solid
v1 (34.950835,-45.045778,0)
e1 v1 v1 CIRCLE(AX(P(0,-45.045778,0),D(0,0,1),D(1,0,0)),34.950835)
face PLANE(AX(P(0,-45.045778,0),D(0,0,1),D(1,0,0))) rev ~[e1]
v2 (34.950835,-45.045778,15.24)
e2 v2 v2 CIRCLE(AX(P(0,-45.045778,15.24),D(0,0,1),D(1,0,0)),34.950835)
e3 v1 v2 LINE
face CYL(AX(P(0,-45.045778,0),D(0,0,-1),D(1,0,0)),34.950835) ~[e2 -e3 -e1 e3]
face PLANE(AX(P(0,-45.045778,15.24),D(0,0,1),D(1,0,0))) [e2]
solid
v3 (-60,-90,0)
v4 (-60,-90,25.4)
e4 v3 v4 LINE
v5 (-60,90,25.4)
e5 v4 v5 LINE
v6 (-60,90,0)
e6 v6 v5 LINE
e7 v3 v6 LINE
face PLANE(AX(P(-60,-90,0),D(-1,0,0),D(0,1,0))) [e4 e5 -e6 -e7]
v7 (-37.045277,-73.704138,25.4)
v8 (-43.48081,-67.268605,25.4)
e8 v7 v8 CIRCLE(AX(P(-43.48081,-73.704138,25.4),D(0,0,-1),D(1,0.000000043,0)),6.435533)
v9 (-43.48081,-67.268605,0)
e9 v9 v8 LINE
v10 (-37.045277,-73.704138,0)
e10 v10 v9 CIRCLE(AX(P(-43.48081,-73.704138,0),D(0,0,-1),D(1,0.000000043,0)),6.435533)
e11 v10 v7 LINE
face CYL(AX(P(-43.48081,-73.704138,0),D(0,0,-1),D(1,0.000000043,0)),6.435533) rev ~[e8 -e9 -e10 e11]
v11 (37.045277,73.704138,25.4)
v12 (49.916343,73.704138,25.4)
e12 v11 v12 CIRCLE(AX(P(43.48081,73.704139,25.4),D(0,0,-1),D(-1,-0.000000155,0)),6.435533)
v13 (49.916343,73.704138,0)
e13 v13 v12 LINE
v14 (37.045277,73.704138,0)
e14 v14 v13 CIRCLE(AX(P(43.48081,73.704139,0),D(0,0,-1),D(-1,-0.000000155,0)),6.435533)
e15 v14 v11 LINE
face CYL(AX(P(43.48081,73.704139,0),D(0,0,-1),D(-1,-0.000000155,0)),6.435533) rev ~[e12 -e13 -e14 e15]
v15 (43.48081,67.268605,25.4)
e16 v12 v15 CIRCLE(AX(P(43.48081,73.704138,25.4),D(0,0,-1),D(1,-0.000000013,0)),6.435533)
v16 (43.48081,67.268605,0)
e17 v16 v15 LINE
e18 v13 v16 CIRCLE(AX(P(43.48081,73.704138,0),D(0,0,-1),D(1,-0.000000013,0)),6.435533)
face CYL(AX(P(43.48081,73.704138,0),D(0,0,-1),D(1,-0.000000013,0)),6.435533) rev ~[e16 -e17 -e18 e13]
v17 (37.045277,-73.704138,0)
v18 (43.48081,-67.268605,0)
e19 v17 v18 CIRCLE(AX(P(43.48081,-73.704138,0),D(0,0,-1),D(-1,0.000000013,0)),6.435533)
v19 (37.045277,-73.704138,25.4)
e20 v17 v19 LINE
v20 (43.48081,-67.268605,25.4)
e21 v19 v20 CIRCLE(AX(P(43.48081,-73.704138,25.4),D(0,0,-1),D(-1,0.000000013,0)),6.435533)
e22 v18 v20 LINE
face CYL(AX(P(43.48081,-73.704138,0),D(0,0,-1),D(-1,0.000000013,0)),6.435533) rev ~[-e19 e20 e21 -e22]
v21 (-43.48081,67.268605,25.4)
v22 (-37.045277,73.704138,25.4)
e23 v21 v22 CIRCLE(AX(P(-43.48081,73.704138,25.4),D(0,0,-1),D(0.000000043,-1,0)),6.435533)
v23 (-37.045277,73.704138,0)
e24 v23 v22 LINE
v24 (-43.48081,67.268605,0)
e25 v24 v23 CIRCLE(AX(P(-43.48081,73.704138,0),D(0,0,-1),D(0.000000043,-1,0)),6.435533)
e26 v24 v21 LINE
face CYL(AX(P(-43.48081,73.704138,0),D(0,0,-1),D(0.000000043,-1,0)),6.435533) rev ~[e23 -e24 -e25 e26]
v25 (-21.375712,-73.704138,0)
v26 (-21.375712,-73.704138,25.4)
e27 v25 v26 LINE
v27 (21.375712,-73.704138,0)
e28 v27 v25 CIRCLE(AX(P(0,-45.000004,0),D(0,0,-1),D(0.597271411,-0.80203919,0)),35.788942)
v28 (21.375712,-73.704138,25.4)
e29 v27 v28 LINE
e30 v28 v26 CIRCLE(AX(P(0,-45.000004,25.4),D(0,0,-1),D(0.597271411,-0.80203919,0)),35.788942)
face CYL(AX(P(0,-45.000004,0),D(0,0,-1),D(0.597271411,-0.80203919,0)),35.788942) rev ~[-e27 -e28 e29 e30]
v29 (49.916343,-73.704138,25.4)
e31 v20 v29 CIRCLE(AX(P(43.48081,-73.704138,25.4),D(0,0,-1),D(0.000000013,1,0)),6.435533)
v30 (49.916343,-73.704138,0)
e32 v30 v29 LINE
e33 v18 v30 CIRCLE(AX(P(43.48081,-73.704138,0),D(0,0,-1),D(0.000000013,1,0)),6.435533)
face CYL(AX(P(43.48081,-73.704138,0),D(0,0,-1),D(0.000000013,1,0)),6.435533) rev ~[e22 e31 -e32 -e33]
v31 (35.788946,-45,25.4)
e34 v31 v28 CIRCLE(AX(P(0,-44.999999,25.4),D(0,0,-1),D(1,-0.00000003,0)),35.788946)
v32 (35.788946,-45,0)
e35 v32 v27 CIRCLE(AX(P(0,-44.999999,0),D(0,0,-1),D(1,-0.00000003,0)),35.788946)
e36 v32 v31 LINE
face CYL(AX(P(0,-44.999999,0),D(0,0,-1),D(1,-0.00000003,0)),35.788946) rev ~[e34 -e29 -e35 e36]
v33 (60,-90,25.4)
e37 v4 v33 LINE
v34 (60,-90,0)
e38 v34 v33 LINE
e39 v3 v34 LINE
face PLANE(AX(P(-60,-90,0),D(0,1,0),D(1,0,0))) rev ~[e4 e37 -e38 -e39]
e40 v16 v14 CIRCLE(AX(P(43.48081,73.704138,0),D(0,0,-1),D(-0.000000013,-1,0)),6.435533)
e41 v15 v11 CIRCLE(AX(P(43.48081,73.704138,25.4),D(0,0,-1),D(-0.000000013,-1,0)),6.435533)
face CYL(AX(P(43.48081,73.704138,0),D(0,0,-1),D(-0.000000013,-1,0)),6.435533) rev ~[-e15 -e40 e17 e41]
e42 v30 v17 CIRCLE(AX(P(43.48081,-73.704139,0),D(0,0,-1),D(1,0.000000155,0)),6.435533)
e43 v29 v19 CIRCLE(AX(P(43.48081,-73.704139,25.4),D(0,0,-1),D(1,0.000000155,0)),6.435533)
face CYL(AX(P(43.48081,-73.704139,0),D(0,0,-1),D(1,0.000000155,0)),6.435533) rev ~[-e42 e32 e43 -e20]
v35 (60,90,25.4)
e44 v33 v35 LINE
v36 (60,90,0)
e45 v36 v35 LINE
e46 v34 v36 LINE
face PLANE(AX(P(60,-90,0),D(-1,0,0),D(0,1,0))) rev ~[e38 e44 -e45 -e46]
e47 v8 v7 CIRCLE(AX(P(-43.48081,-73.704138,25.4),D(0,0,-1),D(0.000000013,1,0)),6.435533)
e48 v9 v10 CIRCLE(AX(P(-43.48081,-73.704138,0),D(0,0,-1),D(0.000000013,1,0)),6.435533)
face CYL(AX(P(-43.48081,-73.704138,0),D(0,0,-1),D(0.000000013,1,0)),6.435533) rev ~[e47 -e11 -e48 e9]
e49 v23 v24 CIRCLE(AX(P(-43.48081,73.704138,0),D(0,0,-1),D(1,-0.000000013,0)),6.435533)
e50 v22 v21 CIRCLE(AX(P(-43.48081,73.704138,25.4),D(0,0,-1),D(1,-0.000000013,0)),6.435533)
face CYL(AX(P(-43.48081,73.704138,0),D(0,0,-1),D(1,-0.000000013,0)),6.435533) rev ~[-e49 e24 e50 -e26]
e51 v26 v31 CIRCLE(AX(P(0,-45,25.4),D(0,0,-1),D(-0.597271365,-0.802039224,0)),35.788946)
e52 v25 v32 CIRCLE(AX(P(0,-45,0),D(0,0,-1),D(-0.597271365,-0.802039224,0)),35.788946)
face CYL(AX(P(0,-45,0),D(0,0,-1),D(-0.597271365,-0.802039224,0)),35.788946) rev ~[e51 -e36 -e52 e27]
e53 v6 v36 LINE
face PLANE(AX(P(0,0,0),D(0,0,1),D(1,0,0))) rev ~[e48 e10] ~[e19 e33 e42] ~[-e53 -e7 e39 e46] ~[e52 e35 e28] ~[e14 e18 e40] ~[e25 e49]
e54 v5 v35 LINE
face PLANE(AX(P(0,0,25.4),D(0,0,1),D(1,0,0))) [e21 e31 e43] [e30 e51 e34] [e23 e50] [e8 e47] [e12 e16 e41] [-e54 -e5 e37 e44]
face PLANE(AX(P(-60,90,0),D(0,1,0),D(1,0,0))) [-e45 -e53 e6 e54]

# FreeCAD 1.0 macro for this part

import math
import FreeCAD as App
import Part
import Sketcher

doc = App.newDocument("Part")
params = doc.addObject("Spreadsheet::Sheet", "Params")
for row, (alias, value) in enumerate([
    ("sketch1_width", "120 mm"),
    ("sketch1_height", "180 mm"),
    ("pad1_length", "25.4 mm"),
    ("pad2_length", "15.24 mm"),
], start=1):
    params.set(f"A{row}", alias)
    params.set(f"B{row}", "=" + value)
    params.setAlias(f"B{row}", alias)

body = doc.addObject("PartDesign::Body", "Body")

# Sketch on XY plane
sketch1 = body.newObject("Sketcher::SketchObject", "Sketch")
sketch1.AttachmentSupport = (doc.getObject("XY_Plane"), [""])
sketch1.MapMode = "FlatFace"
sketch1.addGeometry([
    Part.LineSegment(App.Vector(-60, 90, 0), App.Vector(-60, -90, 0)),  # 0
    Part.LineSegment(App.Vector(-60, -90, 0), App.Vector(60, -90, 0)),  # 1
    Part.LineSegment(App.Vector(60, -90, 0), App.Vector(60, 90, 0)),  # 2
    Part.LineSegment(App.Vector(60, 90, 0), App.Vector(-60, 90, 0)),  # 3
    Part.ArcOfCircle(Part.Circle(App.Vector(0, -45.000004, 0), App.Vector(0, 0, 1), 35.788942), math.radians(-126.674726), math.radians(-53.325274)),  # 4
    Part.ArcOfCircle(Part.Circle(App.Vector(0, -45, 0), App.Vector(0, 0, 1), 35.788946), math.radians(0), math.radians(233.325277)),  # 5
    Part.ArcOfCircle(Part.Circle(App.Vector(0, -44.999999, 0), App.Vector(0, 0, 1), 35.788946), math.radians(-53.325279), math.radians(-0.000002)),  # 6
    Part.ArcOfCircle(Part.Circle(App.Vector(-43.48081, -73.704138, 0), App.Vector(0, 0, 1), 6.435533), math.radians(89.999998), math.radians(360.000002)),  # 7
    Part.ArcOfCircle(Part.Circle(App.Vector(-43.48081, -73.704138, 0), App.Vector(0, 0, 1), 6.435533), math.radians(0.000001), math.radians(89.999999)),  # 8
    Part.ArcOfCircle(Part.Circle(App.Vector(43.48081, -73.704138, 0), App.Vector(0, 0, 1), 6.435533), math.radians(0.000001), math.radians(89.999999)),  # 9
    Part.ArcOfCircle(Part.Circle(App.Vector(43.48081, -73.704139, 0), App.Vector(0, 0, 1), 6.435533), math.radians(179.999991), math.radians(360.000009)),  # 10
    Part.ArcOfCircle(Part.Circle(App.Vector(43.48081, -73.704138, 0), App.Vector(0, 0, 1), 6.435533), math.radians(90.000001), math.radians(179.999999)),  # 11
    Part.ArcOfCircle(Part.Circle(App.Vector(43.48081, 73.704138, 0), App.Vector(0, 0, 1), 6.435533), math.radians(-89.999999), math.radians(-0.000001)),  # 12
    Part.ArcOfCircle(Part.Circle(App.Vector(43.48081, 73.704138, 0), App.Vector(0, 0, 1), 6.435533), math.radians(-179.999999), math.radians(-90.000001)),  # 13
    Part.ArcOfCircle(Part.Circle(App.Vector(43.48081, 73.704139, 0), App.Vector(0, 0, 1), 6.435533), math.radians(-0.000009), math.radians(180.000009)),  # 14
    Part.ArcOfCircle(Part.Circle(App.Vector(-43.48081, 73.704138, 0), App.Vector(0, 0, 1), 6.435533), math.radians(-0.000002), math.radians(270.000002)),  # 15
    Part.ArcOfCircle(Part.Circle(App.Vector(-43.48081, 73.704138, 0), App.Vector(0, 0, 1), 6.435533), math.radians(-89.999999), math.radians(-0.000001)),  # 16
], False)
sketch1.addConstraint([
    Sketcher.Constraint("Coincident", 0, 2, 1, 1),
    Sketcher.Constraint("Coincident", 1, 2, 2, 1),
    Sketcher.Constraint("Coincident", 2, 2, 3, 1),
    Sketcher.Constraint("Coincident", 3, 2, 0, 1),
    Sketcher.Constraint("Tangent", 4, 1, 5, 2),
    Sketcher.Constraint("Tangent", 5, 1, 6, 2),
    Sketcher.Constraint("Tangent", 6, 1, 4, 2),
    Sketcher.Constraint("Tangent", 7, 1, 8, 2),
    Sketcher.Constraint("Coincident", 8, 1, 7, 2),
    Sketcher.Constraint("Tangent", 9, 1, 10, 2),
    Sketcher.Constraint("Tangent", 10, 1, 11, 2),
    Sketcher.Constraint("Tangent", 11, 1, 9, 2),
    Sketcher.Constraint("Tangent", 12, 1, 13, 2),
    Sketcher.Constraint("Tangent", 13, 1, 14, 2),
    Sketcher.Constraint("Tangent", 14, 1, 12, 2),
    Sketcher.Constraint("Tangent", 15, 1, 16, 2),
    Sketcher.Constraint("Coincident", 16, 1, 15, 2),
    Sketcher.Constraint("Vertical", 0),
    Sketcher.Constraint("Horizontal", 1),
    Sketcher.Constraint("Vertical", 2),
    Sketcher.Constraint("Horizontal", 3),
    Sketcher.Constraint("Equal", 8, 9),
    Sketcher.Constraint("Equal", 11, 12),
    Sketcher.Constraint("Equal", 14, 15),
    Sketcher.Constraint("Symmetric", 7, 3, 12, 3, -1, 1),
    Sketcher.Constraint("Symmetric", 9, 3, 15, 3, -1, 1),
    Sketcher.Constraint("Symmetric", 0, 2, 2, 2, -1, 1),
    Sketcher.Constraint("Symmetric", 7, 3, 9, 3, -2),
    Sketcher.Constraint("Symmetric", 4, 1, 6, 1, -2),
    Sketcher.Constraint("Horizontal", 11, 3, 4, 1),
    Sketcher.Constraint("Horizontal", 6, 3, 5, 1),
    Sketcher.Constraint("Horizontal", 6, 1, 8, 1),
    Sketcher.Constraint("Horizontal", 8, 1, 9, 1),
    Sketcher.Constraint("Horizontal", 9, 1, 10, 1),
    Sketcher.Constraint("Horizontal", 16, 3, 13, 1),
    Sketcher.Constraint("Horizontal", 13, 1, 14, 1),
    Sketcher.Constraint("Horizontal", 14, 1, 15, 1),
    Sketcher.Constraint("Vertical", 16, 3, 7, 1),
    Sketcher.Constraint("Vertical", 14, 3, 11, 1),
    Sketcher.Constraint("Vertical", 11, 1, 12, 1),
    Sketcher.Constraint("Vertical", 7, 1, 16, 1),
    Sketcher.Constraint("DistanceX", 1, 1, 1, 2, 120.0),
    Sketcher.Constraint("DistanceY", 0, 2, 0, 1, 180.0),
    Sketcher.Constraint("DistanceY", 5, 3, -1, 1, 45.0),
    Sketcher.Constraint("Radius", 4, 35.788942),
    Sketcher.Constraint("Radius", 7, 6.435533),
    Sketcher.Constraint("DistanceX", 8, 3, 4, 1, 22.105098),
    Sketcher.Constraint("DistanceY", 7, 1, 4, 3, 22.268601),
])
sketch1.setExpression("Constraints[41]", "Params.sketch1_width")
sketch1.setExpression("Constraints[42]", "Params.sketch1_height")
pad1 = body.newObject("PartDesign::Pad", "Pad")
pad1.Profile = sketch1
pad1.setExpression("Length", "Params.pad1_length")
body2 = doc.addObject("PartDesign::Body", "Body001")

# Sketch on XY plane
sketch2 = body2.newObject("Sketcher::SketchObject", "Sketch001")
sketch2.AttachmentSupport = (doc.getObject("XY_Plane001"), [""])
sketch2.MapMode = "FlatFace"
sketch2.addGeometry(Part.Circle(App.Vector(0, -45.045778, 0), App.Vector(0, 0, 1), 34.950835), False)
sketch2.addConstraint([
    Sketcher.Constraint("PointOnObject", 0, 3, -2),
    Sketcher.Constraint("Diameter", 0, 69.90167),
    Sketcher.Constraint("DistanceY", 0, 3, -1, 1, 45.045778),
])
pad2 = body2.newObject("PartDesign::Pad", "Pad001")
pad2.Profile = sketch2
pad2.setExpression("Length", "Params.pad2_length")

doc.recompute()
